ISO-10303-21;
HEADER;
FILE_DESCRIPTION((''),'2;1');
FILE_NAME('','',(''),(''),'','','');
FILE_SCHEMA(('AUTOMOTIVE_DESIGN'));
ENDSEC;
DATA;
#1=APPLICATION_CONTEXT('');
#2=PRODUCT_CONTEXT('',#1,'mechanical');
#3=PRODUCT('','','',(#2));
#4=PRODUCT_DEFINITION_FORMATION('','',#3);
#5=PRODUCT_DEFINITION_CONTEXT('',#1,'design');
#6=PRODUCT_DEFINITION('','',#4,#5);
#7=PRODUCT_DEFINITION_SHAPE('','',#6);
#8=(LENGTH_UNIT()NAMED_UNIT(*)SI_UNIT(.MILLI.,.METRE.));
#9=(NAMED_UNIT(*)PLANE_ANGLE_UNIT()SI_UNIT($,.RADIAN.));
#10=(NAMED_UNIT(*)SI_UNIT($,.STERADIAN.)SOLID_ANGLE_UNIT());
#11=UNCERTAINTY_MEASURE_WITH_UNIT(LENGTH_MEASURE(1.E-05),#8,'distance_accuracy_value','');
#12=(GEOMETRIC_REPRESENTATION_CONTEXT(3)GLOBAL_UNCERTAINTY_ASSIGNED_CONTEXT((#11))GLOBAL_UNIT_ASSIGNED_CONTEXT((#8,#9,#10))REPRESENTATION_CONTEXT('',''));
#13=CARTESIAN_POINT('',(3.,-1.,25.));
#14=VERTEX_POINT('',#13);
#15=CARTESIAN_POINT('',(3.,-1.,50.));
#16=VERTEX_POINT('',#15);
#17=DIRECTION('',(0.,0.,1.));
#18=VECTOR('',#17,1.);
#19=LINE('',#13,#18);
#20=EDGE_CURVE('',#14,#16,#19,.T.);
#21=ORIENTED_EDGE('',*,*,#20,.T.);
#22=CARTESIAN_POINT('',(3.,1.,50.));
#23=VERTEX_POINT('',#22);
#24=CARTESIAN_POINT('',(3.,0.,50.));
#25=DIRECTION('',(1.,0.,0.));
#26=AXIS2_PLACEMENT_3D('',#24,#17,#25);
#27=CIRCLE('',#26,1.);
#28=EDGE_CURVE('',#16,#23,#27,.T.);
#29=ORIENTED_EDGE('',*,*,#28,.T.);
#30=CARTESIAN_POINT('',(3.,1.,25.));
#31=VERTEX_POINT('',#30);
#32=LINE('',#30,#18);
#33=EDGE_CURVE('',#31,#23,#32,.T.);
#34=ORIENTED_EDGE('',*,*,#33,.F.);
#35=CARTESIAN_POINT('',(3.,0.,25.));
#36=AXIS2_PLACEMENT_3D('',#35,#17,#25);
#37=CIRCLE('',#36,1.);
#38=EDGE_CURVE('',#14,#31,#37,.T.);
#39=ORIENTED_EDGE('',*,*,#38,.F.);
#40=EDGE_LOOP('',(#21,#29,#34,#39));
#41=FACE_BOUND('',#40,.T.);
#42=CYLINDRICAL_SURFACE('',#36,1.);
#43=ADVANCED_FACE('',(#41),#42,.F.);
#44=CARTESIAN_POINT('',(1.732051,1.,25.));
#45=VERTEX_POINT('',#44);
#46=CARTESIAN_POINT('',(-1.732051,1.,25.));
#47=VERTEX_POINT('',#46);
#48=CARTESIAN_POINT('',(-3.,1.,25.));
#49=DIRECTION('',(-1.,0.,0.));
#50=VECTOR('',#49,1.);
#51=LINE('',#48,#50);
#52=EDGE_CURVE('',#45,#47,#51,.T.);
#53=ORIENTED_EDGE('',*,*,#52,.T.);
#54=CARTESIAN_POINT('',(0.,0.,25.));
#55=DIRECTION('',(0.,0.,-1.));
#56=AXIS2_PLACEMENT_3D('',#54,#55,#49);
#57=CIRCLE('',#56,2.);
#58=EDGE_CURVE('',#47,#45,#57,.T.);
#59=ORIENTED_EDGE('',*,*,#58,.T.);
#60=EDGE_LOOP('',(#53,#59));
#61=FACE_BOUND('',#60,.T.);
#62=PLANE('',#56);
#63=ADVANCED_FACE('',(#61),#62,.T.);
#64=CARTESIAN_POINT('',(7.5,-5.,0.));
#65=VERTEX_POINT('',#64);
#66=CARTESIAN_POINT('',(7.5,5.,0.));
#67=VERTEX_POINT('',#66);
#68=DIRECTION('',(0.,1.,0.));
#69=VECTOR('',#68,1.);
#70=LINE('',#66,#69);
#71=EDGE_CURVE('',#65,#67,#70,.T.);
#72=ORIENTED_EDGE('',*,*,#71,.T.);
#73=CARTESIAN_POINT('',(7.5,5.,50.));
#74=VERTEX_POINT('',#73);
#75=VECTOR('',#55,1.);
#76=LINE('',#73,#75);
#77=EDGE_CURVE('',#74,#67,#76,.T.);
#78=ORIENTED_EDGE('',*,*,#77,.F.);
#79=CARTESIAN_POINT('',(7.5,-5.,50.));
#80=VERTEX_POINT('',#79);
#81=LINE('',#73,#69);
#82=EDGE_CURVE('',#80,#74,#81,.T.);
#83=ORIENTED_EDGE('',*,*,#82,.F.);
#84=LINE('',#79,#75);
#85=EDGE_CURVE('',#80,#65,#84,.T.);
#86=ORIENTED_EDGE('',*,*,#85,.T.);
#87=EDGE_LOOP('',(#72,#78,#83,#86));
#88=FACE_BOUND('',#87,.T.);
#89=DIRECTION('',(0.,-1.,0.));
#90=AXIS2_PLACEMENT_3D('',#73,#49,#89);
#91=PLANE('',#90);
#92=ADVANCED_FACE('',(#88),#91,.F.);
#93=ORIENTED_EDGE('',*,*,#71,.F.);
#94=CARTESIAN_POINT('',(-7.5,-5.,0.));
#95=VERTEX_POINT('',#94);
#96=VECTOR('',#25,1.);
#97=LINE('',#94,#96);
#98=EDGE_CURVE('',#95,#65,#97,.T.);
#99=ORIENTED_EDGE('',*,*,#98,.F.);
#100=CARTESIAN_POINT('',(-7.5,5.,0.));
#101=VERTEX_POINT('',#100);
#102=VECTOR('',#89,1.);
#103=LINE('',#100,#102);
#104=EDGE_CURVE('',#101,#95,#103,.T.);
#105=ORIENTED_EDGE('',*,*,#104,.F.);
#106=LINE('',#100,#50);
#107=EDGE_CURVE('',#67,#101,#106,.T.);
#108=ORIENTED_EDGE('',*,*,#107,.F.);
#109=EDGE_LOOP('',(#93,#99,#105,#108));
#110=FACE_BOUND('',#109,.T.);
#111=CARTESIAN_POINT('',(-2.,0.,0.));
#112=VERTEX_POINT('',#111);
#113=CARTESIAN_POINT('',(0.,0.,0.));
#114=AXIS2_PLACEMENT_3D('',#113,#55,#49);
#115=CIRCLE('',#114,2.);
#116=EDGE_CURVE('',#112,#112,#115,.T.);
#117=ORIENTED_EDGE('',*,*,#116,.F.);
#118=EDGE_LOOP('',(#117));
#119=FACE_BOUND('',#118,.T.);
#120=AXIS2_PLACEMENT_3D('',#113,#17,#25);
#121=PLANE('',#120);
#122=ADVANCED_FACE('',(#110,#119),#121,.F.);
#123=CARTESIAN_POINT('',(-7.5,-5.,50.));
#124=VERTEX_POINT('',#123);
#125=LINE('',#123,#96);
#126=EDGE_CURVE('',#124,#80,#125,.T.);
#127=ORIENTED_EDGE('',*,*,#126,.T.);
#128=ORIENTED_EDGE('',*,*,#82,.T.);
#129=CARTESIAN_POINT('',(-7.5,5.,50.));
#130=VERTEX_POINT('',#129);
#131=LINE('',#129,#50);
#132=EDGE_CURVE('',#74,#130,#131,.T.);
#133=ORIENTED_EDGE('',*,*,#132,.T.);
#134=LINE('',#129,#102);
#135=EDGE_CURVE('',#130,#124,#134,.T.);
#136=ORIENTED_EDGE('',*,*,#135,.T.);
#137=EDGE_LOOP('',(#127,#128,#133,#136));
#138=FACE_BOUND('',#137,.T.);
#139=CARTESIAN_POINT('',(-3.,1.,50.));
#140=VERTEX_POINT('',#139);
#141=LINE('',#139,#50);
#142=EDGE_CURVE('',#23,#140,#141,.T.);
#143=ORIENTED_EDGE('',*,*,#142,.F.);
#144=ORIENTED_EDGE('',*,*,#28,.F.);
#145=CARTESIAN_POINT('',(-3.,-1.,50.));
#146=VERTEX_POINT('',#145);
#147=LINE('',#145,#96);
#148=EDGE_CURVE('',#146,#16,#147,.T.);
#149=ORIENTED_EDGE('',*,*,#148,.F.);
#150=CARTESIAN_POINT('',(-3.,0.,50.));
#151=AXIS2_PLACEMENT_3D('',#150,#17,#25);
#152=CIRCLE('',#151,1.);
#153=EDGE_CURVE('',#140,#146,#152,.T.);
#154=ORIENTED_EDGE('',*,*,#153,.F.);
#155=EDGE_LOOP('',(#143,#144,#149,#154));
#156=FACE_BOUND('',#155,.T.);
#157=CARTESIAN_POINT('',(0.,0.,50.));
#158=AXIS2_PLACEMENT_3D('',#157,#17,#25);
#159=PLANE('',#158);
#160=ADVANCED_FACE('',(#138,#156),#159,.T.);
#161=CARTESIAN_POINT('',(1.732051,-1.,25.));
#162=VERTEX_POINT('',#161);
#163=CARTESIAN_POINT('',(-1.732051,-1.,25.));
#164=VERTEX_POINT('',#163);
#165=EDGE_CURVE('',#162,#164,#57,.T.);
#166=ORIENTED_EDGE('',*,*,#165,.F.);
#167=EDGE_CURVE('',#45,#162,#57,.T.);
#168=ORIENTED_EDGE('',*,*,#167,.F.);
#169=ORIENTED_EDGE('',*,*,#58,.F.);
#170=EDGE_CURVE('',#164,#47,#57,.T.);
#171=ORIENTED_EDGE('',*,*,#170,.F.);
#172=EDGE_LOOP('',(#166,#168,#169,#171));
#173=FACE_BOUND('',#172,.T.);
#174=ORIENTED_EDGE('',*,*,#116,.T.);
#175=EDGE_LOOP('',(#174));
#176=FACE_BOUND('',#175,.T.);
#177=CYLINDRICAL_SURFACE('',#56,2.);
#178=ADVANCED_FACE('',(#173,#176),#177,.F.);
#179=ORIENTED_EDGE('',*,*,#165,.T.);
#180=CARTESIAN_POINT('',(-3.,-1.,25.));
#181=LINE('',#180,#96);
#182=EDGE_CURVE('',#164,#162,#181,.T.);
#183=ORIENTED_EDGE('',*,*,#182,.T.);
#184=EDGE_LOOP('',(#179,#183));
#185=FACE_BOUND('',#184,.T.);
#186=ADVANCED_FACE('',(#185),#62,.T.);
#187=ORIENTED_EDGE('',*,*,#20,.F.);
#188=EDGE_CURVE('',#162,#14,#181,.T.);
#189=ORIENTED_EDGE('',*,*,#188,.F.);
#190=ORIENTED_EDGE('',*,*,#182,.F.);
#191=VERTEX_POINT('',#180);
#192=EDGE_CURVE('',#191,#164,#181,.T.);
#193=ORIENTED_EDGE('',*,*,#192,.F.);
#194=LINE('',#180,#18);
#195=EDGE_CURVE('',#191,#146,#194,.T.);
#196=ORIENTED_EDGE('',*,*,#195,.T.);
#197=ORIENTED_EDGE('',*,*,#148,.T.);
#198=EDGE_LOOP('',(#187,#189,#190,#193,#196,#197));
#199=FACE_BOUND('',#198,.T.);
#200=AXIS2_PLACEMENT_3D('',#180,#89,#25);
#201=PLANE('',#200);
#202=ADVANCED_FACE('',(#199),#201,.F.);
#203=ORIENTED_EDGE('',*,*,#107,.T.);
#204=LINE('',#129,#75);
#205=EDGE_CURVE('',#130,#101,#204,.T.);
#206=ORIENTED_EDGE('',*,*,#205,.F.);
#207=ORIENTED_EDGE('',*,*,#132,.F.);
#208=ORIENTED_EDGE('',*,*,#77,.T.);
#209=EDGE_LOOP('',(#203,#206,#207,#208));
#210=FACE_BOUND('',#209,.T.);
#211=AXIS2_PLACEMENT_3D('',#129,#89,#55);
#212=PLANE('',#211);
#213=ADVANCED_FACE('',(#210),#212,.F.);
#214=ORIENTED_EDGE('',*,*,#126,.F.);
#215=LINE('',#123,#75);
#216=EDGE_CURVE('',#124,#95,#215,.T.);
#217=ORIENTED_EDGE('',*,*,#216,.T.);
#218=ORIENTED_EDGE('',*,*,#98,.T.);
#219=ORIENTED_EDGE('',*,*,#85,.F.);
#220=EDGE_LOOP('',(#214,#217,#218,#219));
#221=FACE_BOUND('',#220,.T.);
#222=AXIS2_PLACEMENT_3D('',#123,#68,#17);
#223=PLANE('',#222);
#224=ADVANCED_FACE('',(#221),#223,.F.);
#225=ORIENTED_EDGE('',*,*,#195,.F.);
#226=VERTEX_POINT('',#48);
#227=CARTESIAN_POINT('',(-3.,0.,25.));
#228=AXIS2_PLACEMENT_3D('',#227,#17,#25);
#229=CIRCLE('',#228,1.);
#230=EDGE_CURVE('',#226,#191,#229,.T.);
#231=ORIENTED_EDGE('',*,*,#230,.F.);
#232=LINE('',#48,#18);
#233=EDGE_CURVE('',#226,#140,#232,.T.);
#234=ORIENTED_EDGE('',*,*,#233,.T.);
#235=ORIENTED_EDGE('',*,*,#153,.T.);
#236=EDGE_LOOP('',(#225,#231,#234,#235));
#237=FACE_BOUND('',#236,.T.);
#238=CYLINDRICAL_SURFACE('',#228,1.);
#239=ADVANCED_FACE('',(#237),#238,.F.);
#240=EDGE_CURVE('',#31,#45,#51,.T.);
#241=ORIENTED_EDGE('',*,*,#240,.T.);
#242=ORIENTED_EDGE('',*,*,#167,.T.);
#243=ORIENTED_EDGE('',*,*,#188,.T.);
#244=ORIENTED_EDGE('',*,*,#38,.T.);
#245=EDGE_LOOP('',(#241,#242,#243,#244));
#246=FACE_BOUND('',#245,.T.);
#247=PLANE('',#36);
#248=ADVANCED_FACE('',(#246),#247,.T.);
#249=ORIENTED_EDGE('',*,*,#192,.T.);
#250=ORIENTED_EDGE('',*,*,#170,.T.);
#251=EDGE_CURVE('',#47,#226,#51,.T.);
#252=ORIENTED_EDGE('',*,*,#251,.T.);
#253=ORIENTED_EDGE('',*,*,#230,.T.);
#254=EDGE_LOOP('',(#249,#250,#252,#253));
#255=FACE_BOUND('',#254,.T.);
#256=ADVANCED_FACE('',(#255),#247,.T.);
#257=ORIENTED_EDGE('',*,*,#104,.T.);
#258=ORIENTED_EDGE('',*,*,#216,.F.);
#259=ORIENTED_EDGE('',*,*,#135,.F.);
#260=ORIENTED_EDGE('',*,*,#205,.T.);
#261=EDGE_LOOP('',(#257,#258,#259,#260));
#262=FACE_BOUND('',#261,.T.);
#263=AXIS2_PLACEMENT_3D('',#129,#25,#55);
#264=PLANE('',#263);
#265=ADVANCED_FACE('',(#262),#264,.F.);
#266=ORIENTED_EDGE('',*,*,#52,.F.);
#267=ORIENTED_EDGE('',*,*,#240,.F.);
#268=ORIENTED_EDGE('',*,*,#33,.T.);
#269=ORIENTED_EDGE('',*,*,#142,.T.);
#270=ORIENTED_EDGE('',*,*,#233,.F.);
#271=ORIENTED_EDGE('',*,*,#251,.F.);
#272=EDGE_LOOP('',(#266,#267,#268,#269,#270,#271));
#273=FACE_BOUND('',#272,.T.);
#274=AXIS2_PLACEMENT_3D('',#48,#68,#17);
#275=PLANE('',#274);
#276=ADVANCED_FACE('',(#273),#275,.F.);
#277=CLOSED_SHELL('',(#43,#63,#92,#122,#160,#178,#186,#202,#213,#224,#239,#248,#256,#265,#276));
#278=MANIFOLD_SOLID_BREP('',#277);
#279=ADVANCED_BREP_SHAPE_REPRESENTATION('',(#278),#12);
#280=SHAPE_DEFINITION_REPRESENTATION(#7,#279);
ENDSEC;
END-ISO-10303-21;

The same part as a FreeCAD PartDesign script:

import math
import FreeCAD as App
import Part
import Sketcher

V = App.Vector
Q = App.Units.Quantity


def add_polygon(sketch, points):
    """Adds a closed chain of lines whose ends are joined by coincident constraints."""
    first, n = sketch.GeometryCount, len(points)
    for a, b in zip(points, points[1:] + points[:1]):
        sketch.addGeometry(Part.LineSegment(App.Vector(*a, 0), App.Vector(*b, 0)), False)
    for i in range(n):
        sketch.addConstraint(Sketcher.Constraint("Coincident", first + i, 2, first + (i + 1) % n, 1))

doc = App.newDocument("Part")
params = doc.addObject("Spreadsheet::Sheet", "Params")
for row, (alias, value) in enumerate([
    ("sketch1_width", "15 mm"),
    ("sketch1_height", "10 mm"),
    ("pad1_length", "50 mm"),
    ("sketch2_radius", "1 mm"),
    ("sketch2_width", "6 mm"),
    ("pocket1_length", "25 mm"),
    ("sketch3_diameter", "4 mm"),
    ("pocket2_length", "25 mm"),
], start=1):
    params.set(f"A{row}", alias)
    params.set(f"B{row}", "=" + value)
    params.setAlias(f"B{row}", alias)

body = doc.addObject("PartDesign::Body", "Body")

# Sketch on XY plane
sketch1 = body.newObject("Sketcher::SketchObject", "Sketch")
sketch1.AttachmentSupport = (doc.getObject("XY_Plane"), [""])
sketch1.MapMode = "FlatFace"
add_polygon(sketch1, [(-8, 5), (-8, -5), (8, -5), (8, 5)])  # lines 0-3
sketch1.addConstraint(Sketcher.Constraint("Vertical", 0))
sketch1.addConstraint(Sketcher.Constraint("Horizontal", 1))
sketch1.addConstraint(Sketcher.Constraint("Vertical", 2))
sketch1.addConstraint(Sketcher.Constraint("Horizontal", 3))
sketch1.addConstraint(Sketcher.Constraint("Symmetric", 0, 2, 2, 2, -1, 1))
sketch1.addConstraint(Sketcher.Constraint("DistanceX", 1, 1, 1, 2, Q("15 mm")))
sketch1.addConstraint(Sketcher.Constraint("DistanceY", 0, 2, 0, 1, Q("10 mm")))
sketch1.setExpression("Constraints[9]", "Params.sketch1_width")
sketch1.setExpression("Constraints[10]", "Params.sketch1_height")
pad1 = body.newObject("PartDesign::Pad", "Pad")
pad1.Profile = sketch1
pad1.setExpression("Length", "Params.pad1_length")

# Sketch on XY plane
sketch2 = body.newObject("Sketcher::SketchObject", "Sketch001")
sketch2.AttachmentSupport = (doc.getObject("XY_Plane"), [""])
sketch2.MapMode = "FlatFace"
sketch2.AttachmentOffset = App.Placement(V(0, 0, 50), App.Rotation())
sketch2.addGeometry(Part.LineSegment(V(3, 1, 0), V(-3, 1, 0)), False)
sketch2.addGeometry(Part.ArcOfCircle(Part.Circle(V(-3, 0, 0), V(0, 0, 1), 1), math.radians(90), math.radians(270)), False)
sketch2.addGeometry(Part.LineSegment(V(-3, -1, 0), V(3, -1, 0)), False)
sketch2.addGeometry(Part.ArcOfCircle(Part.Circle(V(3, 0, 0), V(0, 0, 1), 1), math.radians(-90), math.radians(90)), False)
sketch2.addConstraint(Sketcher.Constraint("Tangent", 0, 2, 1, 1))
sketch2.addConstraint(Sketcher.Constraint("Tangent", 1, 2, 2, 1))
sketch2.addConstraint(Sketcher.Constraint("Tangent", 2, 2, 3, 1))
sketch2.addConstraint(Sketcher.Constraint("Tangent", 3, 2, 0, 1))
sketch2.addConstraint(Sketcher.Constraint("Horizontal", 0))
sketch2.addConstraint(Sketcher.Constraint("Horizontal", 2))
sketch2.addConstraint(Sketcher.Constraint("Symmetric", 1, 3, 3, 3, -1, 1))
sketch2.addConstraint(Sketcher.Constraint("Radius", 1, Q("1 mm")))
sketch2.addConstraint(Sketcher.Constraint("DistanceX", 0, 2, 0, 1, Q("6 mm")))
sketch2.setExpression("Constraints[7]", "Params.sketch2_radius")
sketch2.setExpression("Constraints[8]", "Params.sketch2_width")
pocket1 = body.newObject("PartDesign::Pocket", "Pocket")
pocket1.Profile = sketch2
pocket1.setExpression("Length", "Params.pocket1_length")

# Sketch on XY plane
sketch3 = body.newObject("Sketcher::SketchObject", "Sketch002")
sketch3.AttachmentSupport = (doc.getObject("XY_Plane"), [""])
sketch3.MapMode = "FlatFace"
sketch3.addGeometry(Part.Circle(V(0, 0, 0), V(0, 0, 1), 2), False)
sketch3.addConstraint(Sketcher.Constraint("Coincident", 0, 3, -1, 1))
sketch3.addConstraint(Sketcher.Constraint("Diameter", 0, Q("4 mm")))
sketch3.setExpression("Constraints[1]", "Params.sketch3_diameter")
pocket2 = body.newObject("PartDesign::Pocket", "Pocket001")
pocket2.Profile = sketch3
pocket2.setExpression("Length", "Params.pocket2_length")
pocket2.Reversed = True

doc.recompute()
